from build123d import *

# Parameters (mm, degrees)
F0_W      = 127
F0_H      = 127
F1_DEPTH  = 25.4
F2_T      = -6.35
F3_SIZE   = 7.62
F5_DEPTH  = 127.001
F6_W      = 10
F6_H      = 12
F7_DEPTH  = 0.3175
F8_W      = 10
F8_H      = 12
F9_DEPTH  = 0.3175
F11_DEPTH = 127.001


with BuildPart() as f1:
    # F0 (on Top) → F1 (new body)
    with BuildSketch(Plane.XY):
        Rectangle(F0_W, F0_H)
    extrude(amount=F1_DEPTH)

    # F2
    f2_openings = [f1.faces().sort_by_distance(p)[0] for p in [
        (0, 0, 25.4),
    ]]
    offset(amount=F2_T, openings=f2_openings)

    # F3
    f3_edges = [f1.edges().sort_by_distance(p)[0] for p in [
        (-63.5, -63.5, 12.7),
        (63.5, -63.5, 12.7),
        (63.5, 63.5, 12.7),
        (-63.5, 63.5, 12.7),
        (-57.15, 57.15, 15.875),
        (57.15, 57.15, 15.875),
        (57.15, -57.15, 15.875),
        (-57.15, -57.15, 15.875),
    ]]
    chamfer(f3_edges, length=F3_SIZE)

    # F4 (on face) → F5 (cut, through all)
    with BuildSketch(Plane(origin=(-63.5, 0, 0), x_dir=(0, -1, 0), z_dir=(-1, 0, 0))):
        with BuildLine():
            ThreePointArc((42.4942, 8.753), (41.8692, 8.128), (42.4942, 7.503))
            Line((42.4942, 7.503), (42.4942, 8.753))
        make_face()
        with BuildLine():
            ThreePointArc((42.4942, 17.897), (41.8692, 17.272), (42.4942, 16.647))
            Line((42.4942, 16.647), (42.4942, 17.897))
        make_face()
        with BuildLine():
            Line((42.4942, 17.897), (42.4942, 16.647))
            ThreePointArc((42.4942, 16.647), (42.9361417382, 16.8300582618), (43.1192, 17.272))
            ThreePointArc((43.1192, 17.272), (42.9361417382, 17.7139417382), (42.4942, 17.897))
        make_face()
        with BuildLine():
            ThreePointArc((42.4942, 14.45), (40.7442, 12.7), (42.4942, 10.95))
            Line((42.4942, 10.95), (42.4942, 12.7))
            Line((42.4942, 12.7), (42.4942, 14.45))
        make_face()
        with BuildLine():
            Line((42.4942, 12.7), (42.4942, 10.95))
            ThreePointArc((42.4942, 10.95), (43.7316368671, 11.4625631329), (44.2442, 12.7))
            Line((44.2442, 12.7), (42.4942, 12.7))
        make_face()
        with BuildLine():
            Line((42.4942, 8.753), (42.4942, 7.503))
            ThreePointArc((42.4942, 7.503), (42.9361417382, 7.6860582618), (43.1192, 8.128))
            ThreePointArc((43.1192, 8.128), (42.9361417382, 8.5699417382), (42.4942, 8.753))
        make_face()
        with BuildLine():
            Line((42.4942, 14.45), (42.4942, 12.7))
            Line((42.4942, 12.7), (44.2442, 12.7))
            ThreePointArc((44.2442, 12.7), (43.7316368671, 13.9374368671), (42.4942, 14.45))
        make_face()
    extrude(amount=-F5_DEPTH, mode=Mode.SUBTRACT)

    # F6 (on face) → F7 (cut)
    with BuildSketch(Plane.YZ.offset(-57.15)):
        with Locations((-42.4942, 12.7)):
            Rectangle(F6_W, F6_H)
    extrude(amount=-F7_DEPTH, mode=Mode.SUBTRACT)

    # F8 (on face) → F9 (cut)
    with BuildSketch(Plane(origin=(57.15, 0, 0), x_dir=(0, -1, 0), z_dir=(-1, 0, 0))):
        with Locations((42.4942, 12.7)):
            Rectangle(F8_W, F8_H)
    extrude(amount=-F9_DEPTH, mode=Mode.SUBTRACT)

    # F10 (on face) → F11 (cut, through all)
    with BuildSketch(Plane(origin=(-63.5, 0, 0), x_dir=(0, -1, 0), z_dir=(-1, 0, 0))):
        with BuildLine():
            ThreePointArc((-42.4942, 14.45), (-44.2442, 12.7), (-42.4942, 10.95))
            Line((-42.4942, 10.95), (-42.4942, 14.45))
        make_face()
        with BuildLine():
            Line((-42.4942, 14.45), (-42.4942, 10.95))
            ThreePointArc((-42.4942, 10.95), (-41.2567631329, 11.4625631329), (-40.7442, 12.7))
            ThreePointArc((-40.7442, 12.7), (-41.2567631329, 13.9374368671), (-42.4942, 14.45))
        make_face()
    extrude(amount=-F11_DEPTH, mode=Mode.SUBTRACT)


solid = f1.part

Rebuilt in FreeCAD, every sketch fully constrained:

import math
import FreeCAD as App
import Part
import Sketcher

V = App.Vector
Q = App.Units.Quantity


def edges_at(feature, points):
    """Names of the edges that pass closest to the given points."""
    edges = feature.Shape.Edges
    near = lambda p: min(range(len(edges)), key=lambda i: edges[i].distToShape(Part.Vertex(*p))[0])
    return sorted({f"Edge{near(p) + 1}" for p in points})


def faces_at(feature, points):
    """Names of the faces that lie closest to the given points."""
    faces = feature.Shape.Faces
    near = lambda p: min(range(len(faces)), key=lambda i: faces[i].distToShape(Part.Vertex(*p))[0])
    return sorted({f"Face{near(p) + 1}" for p in points})


def add_polygon(sketch, points):
    """Adds a closed chain of lines whose ends are joined by coincident constraints."""
    first, n = sketch.GeometryCount, len(points)
    for a, b in zip(points, points[1:] + points[:1]):
        sketch.addGeometry(Part.LineSegment(App.Vector(*a, 0), App.Vector(*b, 0)), False)
    for i in range(n):
        sketch.addConstraint(Sketcher.Constraint("Coincident", first + i, 2, first + (i + 1) % n, 1))

doc = App.newDocument("Part")
body = doc.addObject("PartDesign::Body", "Body")

# Sketch on XY plane
sketch1 = body.newObject("Sketcher::SketchObject", "Sketch")
sketch1.AttachmentSupport = (doc.getObject("XY_Plane"), [""])
sketch1.MapMode = "FlatFace"
add_polygon(sketch1, [(-63.5, 63.5), (-63.5, -63.5), (63.5, -63.5), (63.5, 63.5)])  # lines 0-3
sketch1.addConstraint([
    Sketcher.Constraint("Vertical", 0),
    Sketcher.Constraint("Horizontal", 1),
    Sketcher.Constraint("Vertical", 2),
    Sketcher.Constraint("Horizontal", 3),
    Sketcher.Constraint("Symmetric", 0, 2, 2, 2, -1, 1),
    Sketcher.Constraint("Equal", 3, 0),
    Sketcher.Constraint("DistanceX", 1, 1, 1, 2, Q("5 in")),
])
pad1 = body.newObject("PartDesign::Pad", "Pad")
pad1.Profile = sketch1
pad1.Length = Q("1 in")
doc.recompute()

thickness = body.newObject("PartDesign::Thickness", "Thickness")
thickness.Base = (pad1, faces_at(pad1, [(0, 0, 25.4)]))
thickness.Value = Q("0.25 in")
thickness.Reversed = True
thickness.Join = "Arc"
doc.recompute()

chamfer = body.newObject("PartDesign::Chamfer", "Chamfer")
chamfer.Base = (thickness, edges_at(thickness, [
    (-63.5, -63.5, 12.7),
    (63.5, -63.5, 12.7),
    (63.5, 63.5, 12.7),
    (-63.5, 63.5, 12.7),
    (-57.15, 57.15, 15.875),
    (57.15, 57.15, 15.875),
    (57.15, -57.15, 15.875),
    (-57.15, -57.15, 15.875),
]))
chamfer.Size = Q("0.3 in")

# Sketch on YZ plane
sketch2 = body.newObject("Sketcher::SketchObject", "Sketch001")
sketch2.AttachmentSupport = (doc.getObject("YZ_Plane"), [""])
sketch2.MapMode = "FlatFace"
sketch2.AttachmentOffset = App.Placement(V(0, 0, -2.5 * 25.4), App.Rotation())
sketch2.addGeometry([
    Part.ArcOfCircle(Part.Circle(V(-42.4942, 8.128, 0), V(0, 0, 1), 0.625), math.radians(-90), math.radians(90)),  # 0
    Part.ArcOfCircle(Part.Circle(V(-42.4942, 8.128, 0), V(0, 0, 1), 0.625), math.radians(180), math.radians(270)),  # 1
    Part.ArcOfCircle(Part.Circle(V(-42.4942, 8.128, 0), V(0, 0, 1), 0.625), math.radians(90), math.radians(180)),  # 2
    Part.ArcOfCircle(Part.Circle(V(-42.4942, 17.272, 0), V(0, 0, 1), 0.625), math.radians(-90), math.radians(90)),  # 3
    Part.ArcOfCircle(Part.Circle(V(-42.4942, 17.272, 0), V(0, 0, 1), 0.625), math.radians(180), math.radians(270)),  # 4
    Part.ArcOfCircle(Part.Circle(V(-42.4942, 17.272, 0), V(0, 0, 1), 0.625), math.radians(90), math.radians(180)),  # 5
    Part.ArcOfCircle(Part.Circle(V(-42.4942, 12.7, 0), V(0, 0, 1), 1.75), math.radians(-90), math.radians(90)),  # 6
    Part.ArcOfCircle(Part.Circle(V(-42.4942, 12.7, 0), V(0, 0, 1), 1.75), math.radians(180), math.radians(270)),  # 7
    Part.ArcOfCircle(Part.Circle(V(-42.4942, 12.7, 0), V(0, 0, 1), 1.75), math.radians(90), math.radians(180)),  # 8
], False)
sketch2.addConstraint([
    Sketcher.Constraint("Tangent", 0, 1, 1, 2),
    Sketcher.Constraint("Tangent", 1, 1, 2, 2),
    Sketcher.Constraint("Tangent", 2, 1, 0, 2),
    Sketcher.Constraint("Tangent", 3, 1, 4, 2),
    Sketcher.Constraint("Tangent", 4, 1, 5, 2),
    Sketcher.Constraint("Tangent", 5, 1, 3, 2),
    Sketcher.Constraint("Tangent", 6, 1, 7, 2),
    Sketcher.Constraint("Tangent", 7, 1, 8, 2),
    Sketcher.Constraint("Tangent", 8, 1, 6, 2),
    Sketcher.Constraint("Equal", 2, 3),
    Sketcher.Constraint("Horizontal", 2, 3, 1, 1),
    Sketcher.Constraint("Horizontal", 5, 3, 4, 1),
    Sketcher.Constraint("Horizontal", 8, 3, 7, 1),
    Sketcher.Constraint("Vertical", 2, 3, 3, 3),
    Sketcher.Constraint("Vertical", 5, 3, 6, 3),
    Sketcher.Constraint("Vertical", 8, 3, 0, 1),
    Sketcher.Constraint("Vertical", 0, 1, 2, 1),
    Sketcher.Constraint("Vertical", 2, 1, 3, 1),
    Sketcher.Constraint("Vertical", 3, 1, 5, 1),
    Sketcher.Constraint("Vertical", 5, 1, 6, 1),
    Sketcher.Constraint("Vertical", 6, 1, 8, 1),
    Sketcher.Constraint("DistanceY", -1, 1, 6, 3, Q("0.5 in")),
    Sketcher.Constraint("DistanceY", -1, 1, 0, 3, Q("0.32 in")),
    Sketcher.Constraint("DistanceY", -1, 1, 3, 3, Q("0.68 in")),
    Sketcher.Constraint("Radius", 0, Q("0.625 mm")),
    Sketcher.Constraint("Radius", 6, Q("1.75 mm")),
    Sketcher.Constraint("DistanceX", 0, 3, -1, 1, Q("1.673 in")),
])
pocket1 = body.newObject("PartDesign::Pocket", "Pocket")
pocket1.Profile = sketch2
pocket1.Type = "ThroughAll"
pocket1.Reversed = True

# Sketch on YZ plane
sketch3 = body.newObject("Sketcher::SketchObject", "Sketch002")
sketch3.AttachmentSupport = (doc.getObject("YZ_Plane"), [""])
sketch3.MapMode = "FlatFace"
sketch3.AttachmentOffset = App.Placement(V(0, 0, -2.25 * 25.4), App.Rotation())
add_polygon(sketch3, [(-47.4942, 18.7), (-47.4942, 6.7), (-37.4942, 6.7), (-37.4942, 18.7)])  # lines 0-3
sketch3.addConstraint([
    Sketcher.Constraint("Vertical", 0),
    Sketcher.Constraint("Horizontal", 1),
    Sketcher.Constraint("Vertical", 2),
    Sketcher.Constraint("Horizontal", 3),
    Sketcher.Constraint("DistanceX", 1, 1, 1, 2, Q("10 mm")),
    Sketcher.Constraint("DistanceY", 0, 2, 0, 1, Q("12 mm")),
    Sketcher.Constraint("DistanceX", 0, 2, -1, 1, Q("47.4942 mm")),
    Sketcher.Constraint("DistanceY", -1, 1, 0, 2, Q("6.7 mm")),
])
pocket2 = body.newObject("PartDesign::Pocket", "Pocket001")
pocket2.Profile = sketch3
pocket2.Length = Q("0.0125 in")

# Sketch on YZ plane
sketch4 = body.newObject("Sketcher::SketchObject", "Sketch003")
sketch4.AttachmentSupport = (doc.getObject("YZ_Plane"), [""])
sketch4.MapMode = "FlatFace"
sketch4.AttachmentOffset = App.Placement(V(0, 0, 2.25 * 25.4), App.Rotation())
add_polygon(sketch4, [(-37.4942, 18.7), (-37.4942, 6.7), (-47.4942, 6.7), (-47.4942, 18.7)])  # lines 0-3
sketch4.addConstraint([
    Sketcher.Constraint("Vertical", 0),
    Sketcher.Constraint("Horizontal", 1),
    Sketcher.Constraint("Vertical", 2),
    Sketcher.Constraint("Horizontal", 3),
    Sketcher.Constraint("DistanceX", 1, 2, 1, 1, Q("10 mm")),
    Sketcher.Constraint("DistanceY", 0, 2, 0, 1, Q("12 mm")),
    Sketcher.Constraint("DistanceX", 0, 2, -1, 1, Q("37.4942 mm")),
    Sketcher.Constraint("DistanceY", -1, 1, 0, 2, Q("6.7 mm")),
])
pocket3 = body.newObject("PartDesign::Pocket", "Pocket002")
pocket3.Profile = sketch4
pocket3.Length = Q("0.0125 in")
pocket3.Reversed = True

# Sketch on YZ plane
sketch5 = body.newObject("Sketcher::SketchObject", "Sketch004")
sketch5.AttachmentSupport = (doc.getObject("YZ_Plane"), [""])
sketch5.MapMode = "FlatFace"
sketch5.AttachmentOffset = App.Placement(V(0, 0, -2.5 * 25.4), App.Rotation())
sketch5.addGeometry([
    Part.ArcOfCircle(Part.Circle(V(42.4942, 12.7, 0), V(0, 0, 1), 1.75), math.radians(-90), math.radians(90)),
    Part.ArcOfCircle(Part.Circle(V(42.4942, 12.7, 0), V(0, 0, 1), 1.75), math.radians(180), math.radians(270)),
    Part.ArcOfCircle(Part.Circle(V(42.4942, 12.7, 0), V(0, 0, 1), 1.75), math.radians(90), math.radians(180)),
], False)
sketch5.addConstraint([
    Sketcher.Constraint("Tangent", 0, 1, 1, 2),
    Sketcher.Constraint("Tangent", 1, 1, 2, 2),
    Sketcher.Constraint("Tangent", 2, 1, 0, 2),
    Sketcher.Constraint("Horizontal", 2, 3, 1, 1),
    Sketcher.Constraint("Vertical", 2, 3, 0, 1),
    Sketcher.Constraint("Vertical", 0, 1, 2, 1),
    Sketcher.Constraint("DistanceY", -1, 1, 0, 3, Q("0.5 in")),
    Sketcher.Constraint("Radius", 0, Q("1.75 mm")),
    Sketcher.Constraint("DistanceX", -1, 1, 0, 3, Q("1.673 in")),
])
pocket4 = body.newObject("PartDesign::Pocket", "Pocket003")
pocket4.Profile = sketch5
pocket4.Type = "ThroughAll"
pocket4.Reversed = True

doc.recompute()
